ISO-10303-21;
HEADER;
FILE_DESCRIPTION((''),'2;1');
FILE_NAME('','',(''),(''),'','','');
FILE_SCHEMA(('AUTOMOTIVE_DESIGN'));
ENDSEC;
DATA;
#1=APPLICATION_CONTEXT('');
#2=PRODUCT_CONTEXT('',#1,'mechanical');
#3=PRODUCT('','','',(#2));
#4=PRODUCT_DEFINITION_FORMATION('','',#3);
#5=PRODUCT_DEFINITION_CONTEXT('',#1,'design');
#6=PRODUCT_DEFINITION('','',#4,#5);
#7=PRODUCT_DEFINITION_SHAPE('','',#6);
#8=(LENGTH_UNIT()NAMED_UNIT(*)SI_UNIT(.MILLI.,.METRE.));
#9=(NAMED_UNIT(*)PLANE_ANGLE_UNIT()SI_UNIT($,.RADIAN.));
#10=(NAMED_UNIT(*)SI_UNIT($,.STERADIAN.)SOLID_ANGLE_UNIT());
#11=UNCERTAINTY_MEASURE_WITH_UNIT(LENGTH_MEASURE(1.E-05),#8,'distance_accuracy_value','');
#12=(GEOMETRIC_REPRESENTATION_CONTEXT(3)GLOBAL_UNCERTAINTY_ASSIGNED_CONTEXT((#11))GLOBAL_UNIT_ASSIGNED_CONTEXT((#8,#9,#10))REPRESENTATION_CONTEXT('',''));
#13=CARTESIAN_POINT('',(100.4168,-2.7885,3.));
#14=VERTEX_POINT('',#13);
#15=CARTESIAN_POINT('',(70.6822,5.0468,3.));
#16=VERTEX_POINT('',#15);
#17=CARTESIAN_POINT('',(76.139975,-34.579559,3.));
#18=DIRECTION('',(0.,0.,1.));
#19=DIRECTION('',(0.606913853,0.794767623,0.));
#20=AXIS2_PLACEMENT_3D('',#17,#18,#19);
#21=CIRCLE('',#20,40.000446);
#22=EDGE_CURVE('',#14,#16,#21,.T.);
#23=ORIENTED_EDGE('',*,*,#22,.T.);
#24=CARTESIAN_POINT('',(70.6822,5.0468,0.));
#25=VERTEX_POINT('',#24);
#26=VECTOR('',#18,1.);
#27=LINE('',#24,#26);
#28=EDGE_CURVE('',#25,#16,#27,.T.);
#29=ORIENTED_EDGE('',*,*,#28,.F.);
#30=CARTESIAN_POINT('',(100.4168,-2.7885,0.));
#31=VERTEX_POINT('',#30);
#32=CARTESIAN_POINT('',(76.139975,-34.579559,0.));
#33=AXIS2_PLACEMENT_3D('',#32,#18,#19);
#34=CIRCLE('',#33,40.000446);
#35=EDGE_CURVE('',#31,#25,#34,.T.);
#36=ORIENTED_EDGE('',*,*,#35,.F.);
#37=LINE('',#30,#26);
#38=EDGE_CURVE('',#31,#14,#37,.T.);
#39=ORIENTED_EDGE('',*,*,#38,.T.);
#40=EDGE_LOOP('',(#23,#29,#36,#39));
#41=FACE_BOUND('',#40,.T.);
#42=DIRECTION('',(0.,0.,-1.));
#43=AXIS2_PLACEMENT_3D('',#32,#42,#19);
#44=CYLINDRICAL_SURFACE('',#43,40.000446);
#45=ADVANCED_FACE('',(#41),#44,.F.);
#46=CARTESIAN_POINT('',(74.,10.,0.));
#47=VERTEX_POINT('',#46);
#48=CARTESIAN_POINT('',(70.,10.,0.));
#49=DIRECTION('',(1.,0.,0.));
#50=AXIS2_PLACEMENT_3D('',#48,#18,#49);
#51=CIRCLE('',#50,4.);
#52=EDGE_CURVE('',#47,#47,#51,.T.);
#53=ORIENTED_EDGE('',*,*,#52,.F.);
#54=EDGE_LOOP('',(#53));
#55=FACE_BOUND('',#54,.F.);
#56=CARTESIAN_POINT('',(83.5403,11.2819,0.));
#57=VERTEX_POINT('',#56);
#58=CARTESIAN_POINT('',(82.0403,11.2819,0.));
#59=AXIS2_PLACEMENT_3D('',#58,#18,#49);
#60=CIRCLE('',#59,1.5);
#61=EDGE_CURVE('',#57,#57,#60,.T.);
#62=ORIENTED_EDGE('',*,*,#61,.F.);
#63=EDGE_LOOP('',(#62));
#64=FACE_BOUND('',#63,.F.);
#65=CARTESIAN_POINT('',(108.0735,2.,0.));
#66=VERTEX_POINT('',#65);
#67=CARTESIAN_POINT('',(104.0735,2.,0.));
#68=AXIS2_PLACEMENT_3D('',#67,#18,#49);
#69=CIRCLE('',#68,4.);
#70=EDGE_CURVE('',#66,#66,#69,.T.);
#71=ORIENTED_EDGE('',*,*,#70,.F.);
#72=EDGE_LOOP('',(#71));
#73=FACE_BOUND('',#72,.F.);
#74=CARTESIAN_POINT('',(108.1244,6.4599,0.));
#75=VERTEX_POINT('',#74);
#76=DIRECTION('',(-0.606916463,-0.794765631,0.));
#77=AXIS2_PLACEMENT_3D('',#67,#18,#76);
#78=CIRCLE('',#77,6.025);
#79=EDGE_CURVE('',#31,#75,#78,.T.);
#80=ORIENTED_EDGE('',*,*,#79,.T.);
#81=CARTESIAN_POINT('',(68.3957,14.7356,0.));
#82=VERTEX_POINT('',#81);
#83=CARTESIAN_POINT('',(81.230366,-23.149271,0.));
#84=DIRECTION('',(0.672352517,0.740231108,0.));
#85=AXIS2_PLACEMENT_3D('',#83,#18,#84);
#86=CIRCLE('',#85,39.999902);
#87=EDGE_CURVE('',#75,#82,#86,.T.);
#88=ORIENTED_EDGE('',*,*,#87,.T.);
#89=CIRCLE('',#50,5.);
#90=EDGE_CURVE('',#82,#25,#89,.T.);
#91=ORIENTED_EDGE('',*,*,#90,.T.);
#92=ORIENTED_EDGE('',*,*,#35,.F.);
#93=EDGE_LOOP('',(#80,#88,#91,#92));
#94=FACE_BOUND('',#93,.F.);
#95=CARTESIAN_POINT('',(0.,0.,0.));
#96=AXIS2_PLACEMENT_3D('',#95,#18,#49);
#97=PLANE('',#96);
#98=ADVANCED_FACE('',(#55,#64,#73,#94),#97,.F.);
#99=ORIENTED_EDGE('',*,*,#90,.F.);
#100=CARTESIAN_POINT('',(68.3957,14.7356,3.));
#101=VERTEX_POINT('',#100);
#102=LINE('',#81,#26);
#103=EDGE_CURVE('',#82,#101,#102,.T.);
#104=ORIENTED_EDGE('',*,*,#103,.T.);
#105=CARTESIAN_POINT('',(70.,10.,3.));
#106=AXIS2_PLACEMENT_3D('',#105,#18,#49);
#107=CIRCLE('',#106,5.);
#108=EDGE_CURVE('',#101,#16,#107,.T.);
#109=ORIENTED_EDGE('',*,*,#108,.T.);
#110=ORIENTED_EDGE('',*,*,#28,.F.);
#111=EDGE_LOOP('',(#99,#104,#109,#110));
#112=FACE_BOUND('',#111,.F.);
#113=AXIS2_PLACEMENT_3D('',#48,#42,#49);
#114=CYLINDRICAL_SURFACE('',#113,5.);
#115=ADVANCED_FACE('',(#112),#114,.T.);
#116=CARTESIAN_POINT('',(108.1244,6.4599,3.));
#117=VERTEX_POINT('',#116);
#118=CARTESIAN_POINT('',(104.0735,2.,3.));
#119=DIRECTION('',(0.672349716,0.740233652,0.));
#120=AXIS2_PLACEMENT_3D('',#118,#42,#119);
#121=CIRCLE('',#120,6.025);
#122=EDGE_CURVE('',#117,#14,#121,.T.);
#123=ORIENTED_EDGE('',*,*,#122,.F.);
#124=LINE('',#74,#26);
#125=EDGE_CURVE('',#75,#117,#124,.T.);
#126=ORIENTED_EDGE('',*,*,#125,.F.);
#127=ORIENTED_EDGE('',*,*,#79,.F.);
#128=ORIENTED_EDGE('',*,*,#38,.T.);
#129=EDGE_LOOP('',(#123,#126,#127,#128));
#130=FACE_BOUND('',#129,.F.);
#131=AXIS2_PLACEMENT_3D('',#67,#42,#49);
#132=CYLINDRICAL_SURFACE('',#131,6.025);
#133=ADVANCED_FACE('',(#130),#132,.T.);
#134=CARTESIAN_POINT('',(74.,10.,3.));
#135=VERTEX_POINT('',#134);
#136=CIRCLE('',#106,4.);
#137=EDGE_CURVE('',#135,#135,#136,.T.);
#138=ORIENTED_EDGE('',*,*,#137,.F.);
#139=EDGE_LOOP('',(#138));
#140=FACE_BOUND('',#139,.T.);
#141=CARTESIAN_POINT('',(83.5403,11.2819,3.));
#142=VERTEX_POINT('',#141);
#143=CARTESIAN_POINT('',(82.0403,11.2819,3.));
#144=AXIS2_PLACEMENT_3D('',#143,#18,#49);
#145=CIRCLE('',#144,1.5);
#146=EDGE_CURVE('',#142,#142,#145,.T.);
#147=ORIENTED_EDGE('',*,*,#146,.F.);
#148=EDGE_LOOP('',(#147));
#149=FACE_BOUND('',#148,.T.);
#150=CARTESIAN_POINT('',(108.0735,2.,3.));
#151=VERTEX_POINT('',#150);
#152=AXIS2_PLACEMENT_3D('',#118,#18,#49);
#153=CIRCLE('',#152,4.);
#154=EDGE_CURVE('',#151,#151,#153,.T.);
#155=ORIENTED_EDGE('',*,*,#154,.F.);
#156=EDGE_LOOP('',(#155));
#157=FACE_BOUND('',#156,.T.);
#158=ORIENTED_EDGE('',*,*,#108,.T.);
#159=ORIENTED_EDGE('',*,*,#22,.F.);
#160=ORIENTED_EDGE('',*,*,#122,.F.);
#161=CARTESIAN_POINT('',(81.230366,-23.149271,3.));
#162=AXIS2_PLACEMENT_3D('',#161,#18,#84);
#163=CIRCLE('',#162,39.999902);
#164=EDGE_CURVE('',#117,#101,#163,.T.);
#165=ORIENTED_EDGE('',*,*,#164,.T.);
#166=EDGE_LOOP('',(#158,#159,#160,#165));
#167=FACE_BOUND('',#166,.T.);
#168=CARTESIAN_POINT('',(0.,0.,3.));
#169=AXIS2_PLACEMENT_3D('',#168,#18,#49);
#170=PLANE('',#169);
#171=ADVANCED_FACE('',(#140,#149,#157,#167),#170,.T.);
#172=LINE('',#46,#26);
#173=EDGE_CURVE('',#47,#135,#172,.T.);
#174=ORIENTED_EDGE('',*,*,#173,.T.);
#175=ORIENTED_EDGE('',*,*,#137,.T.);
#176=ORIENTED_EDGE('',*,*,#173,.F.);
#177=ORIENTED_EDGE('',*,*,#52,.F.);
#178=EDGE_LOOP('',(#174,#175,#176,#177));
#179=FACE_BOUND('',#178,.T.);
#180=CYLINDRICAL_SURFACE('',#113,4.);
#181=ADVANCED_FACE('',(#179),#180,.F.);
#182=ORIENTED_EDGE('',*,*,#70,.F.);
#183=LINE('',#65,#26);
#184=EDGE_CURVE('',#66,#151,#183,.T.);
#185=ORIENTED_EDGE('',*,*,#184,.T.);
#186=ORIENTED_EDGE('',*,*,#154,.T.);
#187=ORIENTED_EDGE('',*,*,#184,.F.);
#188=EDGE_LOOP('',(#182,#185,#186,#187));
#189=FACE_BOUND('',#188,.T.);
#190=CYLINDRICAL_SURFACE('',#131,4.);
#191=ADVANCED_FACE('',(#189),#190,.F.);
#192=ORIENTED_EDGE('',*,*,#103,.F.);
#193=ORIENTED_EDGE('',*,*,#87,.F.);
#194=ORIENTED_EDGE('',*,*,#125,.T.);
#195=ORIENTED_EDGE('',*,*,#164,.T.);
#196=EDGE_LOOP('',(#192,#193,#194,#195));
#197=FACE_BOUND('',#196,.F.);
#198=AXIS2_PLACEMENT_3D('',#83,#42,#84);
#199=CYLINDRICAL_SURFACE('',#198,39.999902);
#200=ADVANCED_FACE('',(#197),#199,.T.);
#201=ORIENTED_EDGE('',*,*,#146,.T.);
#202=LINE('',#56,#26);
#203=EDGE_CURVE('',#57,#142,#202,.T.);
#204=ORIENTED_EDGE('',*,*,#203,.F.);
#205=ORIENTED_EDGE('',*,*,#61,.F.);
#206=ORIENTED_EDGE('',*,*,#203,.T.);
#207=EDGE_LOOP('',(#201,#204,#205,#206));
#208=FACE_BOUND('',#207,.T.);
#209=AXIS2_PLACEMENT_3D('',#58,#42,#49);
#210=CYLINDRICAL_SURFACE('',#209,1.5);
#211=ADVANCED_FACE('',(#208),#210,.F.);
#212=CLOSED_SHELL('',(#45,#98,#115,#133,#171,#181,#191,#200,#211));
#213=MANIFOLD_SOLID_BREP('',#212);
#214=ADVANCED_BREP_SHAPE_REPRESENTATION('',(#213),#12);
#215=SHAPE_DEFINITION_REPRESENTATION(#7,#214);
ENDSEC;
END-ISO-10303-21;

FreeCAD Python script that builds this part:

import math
import FreeCAD as App
import Part
import Sketcher

V = App.Vector

doc = App.newDocument("Part")
body = doc.addObject("PartDesign::Body", "Body")

# Sketch on XY plane
sketch1 = body.newObject("Sketcher::SketchObject", "Sketch")
sketch1.AttachmentSupport = (doc.getObject("XY_Plane"), [""])
sketch1.MapMode = "FlatFace"
sketch1.addGeometry([
    Part.ArcOfCircle(Part.Circle(V(104.0735, 2, 0), V(0, 0, 1), 6.025), math.radians(-127.366876), math.radians(47.751323)),  # 0
    Part.ArcOfCircle(Part.Circle(V(81.2303, -23.1494, 0), V(0, 0, 1), 40.000041), math.radians(47.75116), math.radians(108.715243)),  # 1
    Part.ArcOfCircle(Part.Circle(V(70, 10, 0), V(0, 0, 1), 5), math.radians(108.715064), math.radians(277.841962)),  # 2
    Part.ArcOfCircle(Part.Circle(V(76.1402, -34.5791, 0), V(0, 0, 1), 39.999944), math.radians(52.633169), math.radians(97.84247)),  # 3
    Part.Circle(V(104.0735, 2, 0), V(0, 0, 1), 4),  # 4
    Part.Circle(V(82.0403, 11.2819, 0), V(0, 0, 1), 1.5),  # 5
    Part.Circle(V(70, 10, 0), V(0, 0, 1), 4),  # 6
], False)
sketch1.addConstraint([
    Sketcher.Constraint("Coincident", 0, 2, 1, 1),
    Sketcher.Constraint("Coincident", 1, 2, 2, 1),
    Sketcher.Constraint("Coincident", 2, 2, 3, 2),
    Sketcher.Constraint("Coincident", 3, 1, 0, 1),
    Sketcher.Constraint("Coincident", 4, 3, 0, 3),
    Sketcher.Constraint("Coincident", 6, 3, 2, 3),
    Sketcher.Constraint("Diameter", 4, 8.0),
    Sketcher.Constraint("Diameter", 5, 3.0),
    Sketcher.Constraint("Diameter", 6, 8.0),
    Sketcher.Constraint("Radius", 1, 40.0),
    Sketcher.Constraint("Radius", 2, 5.0),
    Sketcher.Constraint("Radius", 3, 40.0),
    Sketcher.Constraint("DistanceY", -1, 1, 2, 3, 10.0),
    Sketcher.Constraint("DistanceY", 0, 3, 2, 3, 8.0),
    Sketcher.Constraint("DistanceX", -1, 1, 2, 3, 70.0),
    Sketcher.Constraint("Radius", 0, 6.025),
    Sketcher.Constraint("DistanceX", 3, 3, 5, 3, 5.9),
    Sketcher.Constraint("DistanceY", -1, 1, 0, 2, 6.46),
    Sketcher.Constraint("DistanceX", 3, 3, 1, 3, 5.09),
    Sketcher.Constraint("DistanceY", -1, 1, 5, 3, 11.282),
    Sketcher.Constraint("DistanceX", 2, 2, 5, 3, 11.358),
    Sketcher.Constraint("DistanceY", 1, 3, 3, 1, 20.361),
    Sketcher.Constraint("DistanceX", -1, 1, 1, 2, 68.3957),
])
pad1 = body.newObject("PartDesign::Pad", "Pad")
pad1.Profile = sketch1
pad1.Length = 3

doc.recompute()
